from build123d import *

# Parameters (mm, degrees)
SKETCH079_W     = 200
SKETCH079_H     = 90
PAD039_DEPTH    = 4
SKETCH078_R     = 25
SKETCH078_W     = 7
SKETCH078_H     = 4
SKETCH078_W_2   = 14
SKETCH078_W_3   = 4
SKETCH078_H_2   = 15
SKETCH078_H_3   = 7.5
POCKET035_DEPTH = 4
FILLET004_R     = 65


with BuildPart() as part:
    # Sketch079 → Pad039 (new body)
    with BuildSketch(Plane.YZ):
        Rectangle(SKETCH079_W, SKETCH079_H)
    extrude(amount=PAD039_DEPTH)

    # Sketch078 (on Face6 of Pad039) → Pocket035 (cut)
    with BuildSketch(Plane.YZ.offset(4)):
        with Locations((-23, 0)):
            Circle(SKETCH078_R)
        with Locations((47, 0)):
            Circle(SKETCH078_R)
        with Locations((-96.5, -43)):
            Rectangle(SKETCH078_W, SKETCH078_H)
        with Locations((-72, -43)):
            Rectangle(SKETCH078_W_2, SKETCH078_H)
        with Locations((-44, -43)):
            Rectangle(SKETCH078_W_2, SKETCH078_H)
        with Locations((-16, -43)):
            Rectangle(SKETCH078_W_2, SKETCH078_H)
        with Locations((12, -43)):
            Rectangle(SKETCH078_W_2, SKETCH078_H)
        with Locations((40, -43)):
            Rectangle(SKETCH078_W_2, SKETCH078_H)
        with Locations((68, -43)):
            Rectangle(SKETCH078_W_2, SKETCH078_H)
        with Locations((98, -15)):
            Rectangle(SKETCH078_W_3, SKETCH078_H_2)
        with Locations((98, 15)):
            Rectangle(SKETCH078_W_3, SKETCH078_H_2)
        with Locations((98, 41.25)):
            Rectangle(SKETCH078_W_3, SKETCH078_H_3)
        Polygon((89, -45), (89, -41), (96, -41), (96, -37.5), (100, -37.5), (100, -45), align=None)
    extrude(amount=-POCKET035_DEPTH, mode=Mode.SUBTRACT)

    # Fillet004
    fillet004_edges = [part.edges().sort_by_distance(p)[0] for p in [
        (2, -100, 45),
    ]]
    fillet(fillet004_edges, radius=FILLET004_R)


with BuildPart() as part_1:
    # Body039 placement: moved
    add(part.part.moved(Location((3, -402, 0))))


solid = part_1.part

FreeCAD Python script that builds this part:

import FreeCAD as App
import Part
import Sketcher
from FreeCAD import Vector


def edges_at(feature, points):
    """Names of the edges that pass closest to the given points."""
    edges = feature.Shape.Edges
    near = lambda p: min(range(len(edges)), key=lambda i: edges[i].distToShape(Part.Vertex(*p))[0])
    return sorted({f"Edge{near(p) + 1}" for p in points})

doc = App.newDocument("Part")
params = doc.addObject("Spreadsheet::Sheet", "Params")
for row, (alias, value) in enumerate([
    ("sketch1_width", "200 mm"),
    ("sketch1_height", "90 mm"),
    ("pad1_length", "4 mm"),
    ("sketch2_diameter", "50 mm"),
    ("sketch2_width", "7 mm"),
    ("sketch2_width2", "14 mm"),
    ("sketch2_width3", "4 mm"),
    ("sketch2_height", "15 mm"),
    ("pocket1_length", "4 mm"),
    ("fillet_radius", "65 mm"),
], start=1):
    params.set(f"A{row}", alias)
    params.set(f"B{row}", "=" + value)
    params.setAlias(f"B{row}", alias)

body = doc.addObject("PartDesign::Body", "Body")

# Sketch on YZ plane
sketch1 = doc.addObject("Sketcher::SketchObject", "Sketch")
body.addObject(sketch1)
sketch1.AttachmentSupport = (doc.YZ_Plane, [""])
sketch1.MapMode = "FlatFace"
sketch1.addGeometry([
    Part.LineSegment(Vector(-100, 45, 0), Vector(-100, -45, 0)),
    Part.LineSegment(Vector(-100, -45, 0), Vector(100, -45, 0)),
    Part.LineSegment(Vector(100, -45, 0), Vector(100, 45, 0)),
    Part.LineSegment(Vector(100, 45, 0), Vector(-100, 45, 0)),
], False)
sketch1.addConstraint([
    Sketcher.Constraint("Coincident", 0, 2, 1, 1),
    Sketcher.Constraint("Coincident", 1, 2, 2, 1),
    Sketcher.Constraint("Coincident", 2, 2, 3, 1),
    Sketcher.Constraint("Coincident", 3, 2, 0, 1),
    Sketcher.Constraint("Vertical", 0),
    Sketcher.Constraint("Horizontal", 1),
    Sketcher.Constraint("Vertical", 2),
    Sketcher.Constraint("Horizontal", 3),
    Sketcher.Constraint("Symmetric", 0, 2, 2, 2, -1, 1),
    Sketcher.Constraint("DistanceX", 1, 1, 1, 2, 200.0),
    Sketcher.Constraint("DistanceY", 0, 2, 0, 1, 90.0),
])
sketch1.setExpression("Constraints[9]", "Params.sketch1_width")
sketch1.setExpression("Constraints[10]", "Params.sketch1_height")
pad1 = doc.addObject("PartDesign::Pad", "Pad")
body.addObject(pad1)
pad1.Profile = sketch1
pad1.setExpression("Length", "Params.pad1_length")

# Sketch on YZ plane
sketch2 = doc.addObject("Sketcher::SketchObject", "Sketch001")
body.addObject(sketch2)
sketch2.AttachmentSupport = (doc.YZ_Plane, [""])
sketch2.MapMode = "FlatFace"
sketch2.AttachmentOffset = App.Placement(Vector(0, 0, 4), App.Rotation())
sketch2.addGeometry([
    Part.Circle(Vector(-23, 0, 0), Vector(0, 0, 1), 25),  # 0
    Part.Circle(Vector(47, 0, 0), Vector(0, 0, 1), 25),  # 1
    Part.LineSegment(Vector(-100, -41, 0), Vector(-100, -45, 0)),  # 2
    Part.LineSegment(Vector(-100, -45, 0), Vector(-93, -45, 0)),  # 3
    Part.LineSegment(Vector(-93, -45, 0), Vector(-93, -41, 0)),  # 4
    Part.LineSegment(Vector(-93, -41, 0), Vector(-100, -41, 0)),  # 5
    Part.LineSegment(Vector(-79, -41, 0), Vector(-79, -45, 0)),  # 6
    Part.LineSegment(Vector(-79, -45, 0), Vector(-65, -45, 0)),  # 7
    Part.LineSegment(Vector(-65, -45, 0), Vector(-65, -41, 0)),  # 8
    Part.LineSegment(Vector(-65, -41, 0), Vector(-79, -41, 0)),  # 9
    Part.LineSegment(Vector(-51, -41, 0), Vector(-51, -45, 0)),  # 10
    Part.LineSegment(Vector(-51, -45, 0), Vector(-37, -45, 0)),  # 11
    Part.LineSegment(Vector(-37, -45, 0), Vector(-37, -41, 0)),  # 12
    Part.LineSegment(Vector(-37, -41, 0), Vector(-51, -41, 0)),  # 13
    Part.LineSegment(Vector(-23, -41, 0), Vector(-23, -45, 0)),  # 14
    Part.LineSegment(Vector(-23, -45, 0), Vector(-9, -45, 0)),  # 15
    Part.LineSegment(Vector(-9, -45, 0), Vector(-9, -41, 0)),  # 16
    Part.LineSegment(Vector(-9, -41, 0), Vector(-23, -41, 0)),  # 17
    Part.LineSegment(Vector(5, -41, 0), Vector(5, -45, 0)),  # 18
    Part.LineSegment(Vector(5, -45, 0), Vector(19, -45, 0)),  # 19
    Part.LineSegment(Vector(19, -45, 0), Vector(19, -41, 0)),  # 20
    Part.LineSegment(Vector(19, -41, 0), Vector(5, -41, 0)),  # 21
    Part.LineSegment(Vector(33, -41, 0), Vector(33, -45, 0)),  # 22
    Part.LineSegment(Vector(33, -45, 0), Vector(47, -45, 0)),  # 23
    Part.LineSegment(Vector(47, -45, 0), Vector(47, -41, 0)),  # 24
    Part.LineSegment(Vector(47, -41, 0), Vector(33, -41, 0)),  # 25
    Part.LineSegment(Vector(61, -41, 0), Vector(61, -45, 0)),  # 26
    Part.LineSegment(Vector(61, -45, 0), Vector(75, -45, 0)),  # 27
    Part.LineSegment(Vector(75, -45, 0), Vector(75, -41, 0)),  # 28
    Part.LineSegment(Vector(75, -41, 0), Vector(61, -41, 0)),  # 29
    Part.LineSegment(Vector(96, -7.5, 0), Vector(96, -22.5, 0)),  # 30
    Part.LineSegment(Vector(96, -22.5, 0), Vector(100, -22.5, 0)),  # 31
    Part.LineSegment(Vector(100, -22.5, 0), Vector(100, -7.5, 0)),  # 32
    Part.LineSegment(Vector(100, -7.5, 0), Vector(96, -7.5, 0)),  # 33
    Part.LineSegment(Vector(96, 22.5, 0), Vector(96, 7.5, 0)),  # 34
    Part.LineSegment(Vector(96, 7.5, 0), Vector(100, 7.5, 0)),  # 35
    Part.LineSegment(Vector(100, 7.5, 0), Vector(100, 22.5, 0)),  # 36
    Part.LineSegment(Vector(100, 22.5, 0), Vector(96, 22.5, 0)),  # 37
    Part.LineSegment(Vector(96, 45, 0), Vector(96, 37.5, 0)),  # 38
    Part.LineSegment(Vector(96, 37.5, 0), Vector(100, 37.5, 0)),  # 39
    Part.LineSegment(Vector(100, 37.5, 0), Vector(100, 45, 0)),  # 40
    Part.LineSegment(Vector(100, 45, 0), Vector(96, 45, 0)),  # 41
    Part.LineSegment(Vector(89, -41, 0), Vector(89, -45, 0)),  # 42
    Part.LineSegment(Vector(89, -45, 0), Vector(100, -45, 0)),  # 43
    Part.LineSegment(Vector(100, -45, 0), Vector(100, -37.5, 0)),  # 44
    Part.LineSegment(Vector(100, -37.5, 0), Vector(96, -37.5, 0)),  # 45
    Part.LineSegment(Vector(96, -37.5, 0), Vector(96, -41, 0)),  # 46
    Part.LineSegment(Vector(96, -41, 0), Vector(89, -41, 0)),  # 47
], False)
sketch2.addConstraint([
    Sketcher.Constraint("Coincident", 2, 2, 3, 1),
    Sketcher.Constraint("Coincident", 3, 2, 4, 1),
    Sketcher.Constraint("Coincident", 4, 2, 5, 1),
    Sketcher.Constraint("Coincident", 5, 2, 2, 1),
    Sketcher.Constraint("Coincident", 6, 2, 7, 1),
    Sketcher.Constraint("Coincident", 7, 2, 8, 1),
    Sketcher.Constraint("Coincident", 8, 2, 9, 1),
    Sketcher.Constraint("Coincident", 9, 2, 6, 1),
    Sketcher.Constraint("Coincident", 10, 2, 11, 1),
    Sketcher.Constraint("Coincident", 11, 2, 12, 1),
    Sketcher.Constraint("Coincident", 12, 2, 13, 1),
    Sketcher.Constraint("Coincident", 13, 2, 10, 1),
    Sketcher.Constraint("Coincident", 14, 2, 15, 1),
    Sketcher.Constraint("Coincident", 15, 2, 16, 1),
    Sketcher.Constraint("Coincident", 16, 2, 17, 1),
    Sketcher.Constraint("Coincident", 17, 2, 14, 1),
    Sketcher.Constraint("Coincident", 18, 2, 19, 1),
    Sketcher.Constraint("Coincident", 19, 2, 20, 1),
    Sketcher.Constraint("Coincident", 20, 2, 21, 1),
    Sketcher.Constraint("Coincident", 21, 2, 18, 1),
    Sketcher.Constraint("Coincident", 22, 2, 23, 1),
    Sketcher.Constraint("Coincident", 23, 2, 24, 1),
    Sketcher.Constraint("Coincident", 24, 2, 25, 1),
    Sketcher.Constraint("Coincident", 25, 2, 22, 1),
    Sketcher.Constraint("Coincident", 26, 2, 27, 1),
    Sketcher.Constraint("Coincident", 27, 2, 28, 1),
    Sketcher.Constraint("Coincident", 28, 2, 29, 1),
    Sketcher.Constraint("Coincident", 29, 2, 26, 1),
    Sketcher.Constraint("Coincident", 30, 2, 31, 1),
    Sketcher.Constraint("Coincident", 31, 2, 32, 1),
    Sketcher.Constraint("Coincident", 32, 2, 33, 1),
    Sketcher.Constraint("Coincident", 33, 2, 30, 1),
    Sketcher.Constraint("Coincident", 34, 2, 35, 1),
    Sketcher.Constraint("Coincident", 35, 2, 36, 1),
    Sketcher.Constraint("Coincident", 36, 2, 37, 1),
    Sketcher.Constraint("Coincident", 37, 2, 34, 1),
    Sketcher.Constraint("Coincident", 38, 2, 39, 1),
    Sketcher.Constraint("Coincident", 39, 2, 40, 1),
    Sketcher.Constraint("Coincident", 40, 2, 41, 1),
    Sketcher.Constraint("Coincident", 41, 2, 38, 1),
    Sketcher.Constraint("Coincident", 42, 2, 43, 1),
    Sketcher.Constraint("Coincident", 43, 2, 44, 1),
    Sketcher.Constraint("Coincident", 44, 2, 45, 1),
    Sketcher.Constraint("Coincident", 45, 2, 46, 1),
    Sketcher.Constraint("Coincident", 46, 2, 47, 1),
    Sketcher.Constraint("Coincident", 47, 2, 42, 1),
    Sketcher.Constraint("Vertical", 2),
    Sketcher.Constraint("Horizontal", 3),
    Sketcher.Constraint("Vertical", 4),
    Sketcher.Constraint("Horizontal", 5),
    Sketcher.Constraint("Vertical", 6),
    Sketcher.Constraint("Horizontal", 7),
    Sketcher.Constraint("Vertical", 8),
    Sketcher.Constraint("Horizontal", 9),
    Sketcher.Constraint("Vertical", 10),
    Sketcher.Constraint("Horizontal", 11),
    Sketcher.Constraint("Vertical", 12),
    Sketcher.Constraint("Horizontal", 13),
    Sketcher.Constraint("Vertical", 14),
    Sketcher.Constraint("Horizontal", 15),
    Sketcher.Constraint("Vertical", 16),
    Sketcher.Constraint("Horizontal", 17),
    Sketcher.Constraint("Vertical", 18),
    Sketcher.Constraint("Horizontal", 19),
    Sketcher.Constraint("Vertical", 20),
    Sketcher.Constraint("Horizontal", 21),
    Sketcher.Constraint("Vertical", 22),
    Sketcher.Constraint("Horizontal", 23),
    Sketcher.Constraint("Vertical", 24),
    Sketcher.Constraint("Horizontal", 25),
    Sketcher.Constraint("Vertical", 26),
    Sketcher.Constraint("Horizontal", 27),
    Sketcher.Constraint("Vertical", 28),
    Sketcher.Constraint("Horizontal", 29),
    Sketcher.Constraint("Vertical", 30),
    Sketcher.Constraint("Horizontal", 31),
    Sketcher.Constraint("Vertical", 32),
    Sketcher.Constraint("Horizontal", 33),
    Sketcher.Constraint("Vertical", 34),
    Sketcher.Constraint("Horizontal", 35),
    Sketcher.Constraint("Vertical", 36),
    Sketcher.Constraint("Horizontal", 37),
    Sketcher.Constraint("Vertical", 38),
    Sketcher.Constraint("Horizontal", 39),
    Sketcher.Constraint("Vertical", 40),
    Sketcher.Constraint("Horizontal", 41),
    Sketcher.Constraint("Vertical", 42),
    Sketcher.Constraint("Horizontal", 43),
    Sketcher.Constraint("Vertical", 44),
    Sketcher.Constraint("Horizontal", 45),
    Sketcher.Constraint("Vertical", 46),
    Sketcher.Constraint("Horizontal", 47),
    Sketcher.Constraint("Equal", 0, 1),
    Sketcher.Constraint("Symmetric", 2, 2, 40, 2, -1, 1),
    Sketcher.Constraint("Symmetric", 2, 2, 43, 2, -2),
    Sketcher.Constraint("Symmetric", 33, 2, 34, 2, -1),
    Sketcher.Constraint("Symmetric", 31, 2, 36, 2, -1),
    Sketcher.Constraint("Symmetric", 38, 2, 45, 2, -1),
    Sketcher.Constraint("PointOnObject", 0, 3, -1),
    Sketcher.Constraint("PointOnObject", 1, 3, -1),
    Sketcher.Constraint("Horizontal", 3, 2, 6, 2),
    Sketcher.Constraint("Horizontal", 5, 2, 8, 2),
    Sketcher.Constraint("Horizontal", 7, 2, 10, 2),
    Sketcher.Constraint("Horizontal", 9, 2, 12, 2),
    Sketcher.Constraint("Horizontal", 11, 2, 14, 2),
    Sketcher.Constraint("Horizontal", 13, 2, 16, 2),
    Sketcher.Constraint("Horizontal", 15, 2, 18, 2),
    Sketcher.Constraint("Horizontal", 17, 2, 20, 2),
    Sketcher.Constraint("Horizontal", 19, 2, 22, 2),
    Sketcher.Constraint("Horizontal", 21, 2, 24, 2),
    Sketcher.Constraint("Horizontal", 23, 2, 26, 2),
    Sketcher.Constraint("Horizontal", 25, 2, 28, 2),
    Sketcher.Constraint("Horizontal", 29, 2, 46, 2),
    Sketcher.Constraint("Vertical", 0, 3, 14, 2),
    Sketcher.Constraint("Vertical", 1, 3, 23, 2),
    Sketcher.Constraint("Vertical", 37, 2, 38, 2),
    Sketcher.Constraint("Vertical", 36, 2, 39, 2),
    Sketcher.Constraint("Equal", 9, 11),
    Sketcher.Constraint("Equal", 13, 15),
    Sketcher.Constraint("Equal", 17, 19),
    Sketcher.Constraint("Equal", 21, 23),
    Sketcher.Constraint("Equal", 25, 27),
    Sketcher.Constraint("Equal", 5, 47),
    Sketcher.Constraint("Equal", 45, 2),
    Sketcher.Constraint("Diameter", 0, 50.0),
    Sketcher.Constraint("DistanceX", 3, 1, 3, 2, 7.0),
    Sketcher.Constraint("DistanceX", 7, 1, 7, 2, 14.0),
    Sketcher.Constraint("DistanceX", 31, 1, 31, 2, 4.0),
    Sketcher.Constraint("DistanceY", 30, 2, 30, 1, 15.0),
    Sketcher.Constraint("DistanceY", 38, 2, 38, 1, 7.5),
    Sketcher.Constraint("DistanceX", 0, 3, -1, 1, 23.0),
    Sketcher.Constraint("DistanceX", -1, 1, 1, 3, 47.0),
    Sketcher.Constraint("DistanceX", 2, 2, -1, 1, 100.0),
    Sketcher.Constraint("DistanceY", 2, 2, -1, 1, 45.0),
    Sketcher.Constraint("DistanceX", 6, 2, -1, 1, 79.0),
    Sketcher.Constraint("DistanceX", 10, 2, -1, 1, 51.0),
    Sketcher.Constraint("DistanceX", -1, 1, 18, 2, 5.0),
    Sketcher.Constraint("DistanceX", -1, 1, 26, 2, 61.0),
    Sketcher.Constraint("DistanceY", 33, 2, 34, 2, 15.0),
])
sketch2.setExpression("Constraints[124]", "Params.sketch2_diameter")
sketch2.setExpression("Constraints[125]", "Params.sketch2_width")
sketch2.setExpression("Constraints[126]", "Params.sketch2_width2")
sketch2.setExpression("Constraints[127]", "Params.sketch2_width3")
sketch2.setExpression("Constraints[128]", "Params.sketch2_height")
pocket1 = doc.addObject("PartDesign::Pocket", "Pocket")
body.addObject(pocket1)
pocket1.Profile = sketch2
pocket1.setExpression("Length", "Params.pocket1_length")
doc.recompute()

fillet = doc.addObject("PartDesign::Fillet", "Fillet")
body.addObject(fillet)
fillet.Base = (pocket1, edges_at(pocket1, [(2, -100, 45)]))
fillet.setExpression("Radius", "Params.fillet_radius")
body2 = doc.addObject("PartDesign::Body", "Body001")
doc.recompute()

body.Placement = App.Placement(Vector(3, -402, 0), App.Rotation(Vector(0, 0, 1), 0))
boolean = doc.addObject("PartDesign::Boolean", "Boolean")
body2.addObject(boolean)
boolean.Type = "Fuse"
boolean.addObjects([body])

doc.recompute()
